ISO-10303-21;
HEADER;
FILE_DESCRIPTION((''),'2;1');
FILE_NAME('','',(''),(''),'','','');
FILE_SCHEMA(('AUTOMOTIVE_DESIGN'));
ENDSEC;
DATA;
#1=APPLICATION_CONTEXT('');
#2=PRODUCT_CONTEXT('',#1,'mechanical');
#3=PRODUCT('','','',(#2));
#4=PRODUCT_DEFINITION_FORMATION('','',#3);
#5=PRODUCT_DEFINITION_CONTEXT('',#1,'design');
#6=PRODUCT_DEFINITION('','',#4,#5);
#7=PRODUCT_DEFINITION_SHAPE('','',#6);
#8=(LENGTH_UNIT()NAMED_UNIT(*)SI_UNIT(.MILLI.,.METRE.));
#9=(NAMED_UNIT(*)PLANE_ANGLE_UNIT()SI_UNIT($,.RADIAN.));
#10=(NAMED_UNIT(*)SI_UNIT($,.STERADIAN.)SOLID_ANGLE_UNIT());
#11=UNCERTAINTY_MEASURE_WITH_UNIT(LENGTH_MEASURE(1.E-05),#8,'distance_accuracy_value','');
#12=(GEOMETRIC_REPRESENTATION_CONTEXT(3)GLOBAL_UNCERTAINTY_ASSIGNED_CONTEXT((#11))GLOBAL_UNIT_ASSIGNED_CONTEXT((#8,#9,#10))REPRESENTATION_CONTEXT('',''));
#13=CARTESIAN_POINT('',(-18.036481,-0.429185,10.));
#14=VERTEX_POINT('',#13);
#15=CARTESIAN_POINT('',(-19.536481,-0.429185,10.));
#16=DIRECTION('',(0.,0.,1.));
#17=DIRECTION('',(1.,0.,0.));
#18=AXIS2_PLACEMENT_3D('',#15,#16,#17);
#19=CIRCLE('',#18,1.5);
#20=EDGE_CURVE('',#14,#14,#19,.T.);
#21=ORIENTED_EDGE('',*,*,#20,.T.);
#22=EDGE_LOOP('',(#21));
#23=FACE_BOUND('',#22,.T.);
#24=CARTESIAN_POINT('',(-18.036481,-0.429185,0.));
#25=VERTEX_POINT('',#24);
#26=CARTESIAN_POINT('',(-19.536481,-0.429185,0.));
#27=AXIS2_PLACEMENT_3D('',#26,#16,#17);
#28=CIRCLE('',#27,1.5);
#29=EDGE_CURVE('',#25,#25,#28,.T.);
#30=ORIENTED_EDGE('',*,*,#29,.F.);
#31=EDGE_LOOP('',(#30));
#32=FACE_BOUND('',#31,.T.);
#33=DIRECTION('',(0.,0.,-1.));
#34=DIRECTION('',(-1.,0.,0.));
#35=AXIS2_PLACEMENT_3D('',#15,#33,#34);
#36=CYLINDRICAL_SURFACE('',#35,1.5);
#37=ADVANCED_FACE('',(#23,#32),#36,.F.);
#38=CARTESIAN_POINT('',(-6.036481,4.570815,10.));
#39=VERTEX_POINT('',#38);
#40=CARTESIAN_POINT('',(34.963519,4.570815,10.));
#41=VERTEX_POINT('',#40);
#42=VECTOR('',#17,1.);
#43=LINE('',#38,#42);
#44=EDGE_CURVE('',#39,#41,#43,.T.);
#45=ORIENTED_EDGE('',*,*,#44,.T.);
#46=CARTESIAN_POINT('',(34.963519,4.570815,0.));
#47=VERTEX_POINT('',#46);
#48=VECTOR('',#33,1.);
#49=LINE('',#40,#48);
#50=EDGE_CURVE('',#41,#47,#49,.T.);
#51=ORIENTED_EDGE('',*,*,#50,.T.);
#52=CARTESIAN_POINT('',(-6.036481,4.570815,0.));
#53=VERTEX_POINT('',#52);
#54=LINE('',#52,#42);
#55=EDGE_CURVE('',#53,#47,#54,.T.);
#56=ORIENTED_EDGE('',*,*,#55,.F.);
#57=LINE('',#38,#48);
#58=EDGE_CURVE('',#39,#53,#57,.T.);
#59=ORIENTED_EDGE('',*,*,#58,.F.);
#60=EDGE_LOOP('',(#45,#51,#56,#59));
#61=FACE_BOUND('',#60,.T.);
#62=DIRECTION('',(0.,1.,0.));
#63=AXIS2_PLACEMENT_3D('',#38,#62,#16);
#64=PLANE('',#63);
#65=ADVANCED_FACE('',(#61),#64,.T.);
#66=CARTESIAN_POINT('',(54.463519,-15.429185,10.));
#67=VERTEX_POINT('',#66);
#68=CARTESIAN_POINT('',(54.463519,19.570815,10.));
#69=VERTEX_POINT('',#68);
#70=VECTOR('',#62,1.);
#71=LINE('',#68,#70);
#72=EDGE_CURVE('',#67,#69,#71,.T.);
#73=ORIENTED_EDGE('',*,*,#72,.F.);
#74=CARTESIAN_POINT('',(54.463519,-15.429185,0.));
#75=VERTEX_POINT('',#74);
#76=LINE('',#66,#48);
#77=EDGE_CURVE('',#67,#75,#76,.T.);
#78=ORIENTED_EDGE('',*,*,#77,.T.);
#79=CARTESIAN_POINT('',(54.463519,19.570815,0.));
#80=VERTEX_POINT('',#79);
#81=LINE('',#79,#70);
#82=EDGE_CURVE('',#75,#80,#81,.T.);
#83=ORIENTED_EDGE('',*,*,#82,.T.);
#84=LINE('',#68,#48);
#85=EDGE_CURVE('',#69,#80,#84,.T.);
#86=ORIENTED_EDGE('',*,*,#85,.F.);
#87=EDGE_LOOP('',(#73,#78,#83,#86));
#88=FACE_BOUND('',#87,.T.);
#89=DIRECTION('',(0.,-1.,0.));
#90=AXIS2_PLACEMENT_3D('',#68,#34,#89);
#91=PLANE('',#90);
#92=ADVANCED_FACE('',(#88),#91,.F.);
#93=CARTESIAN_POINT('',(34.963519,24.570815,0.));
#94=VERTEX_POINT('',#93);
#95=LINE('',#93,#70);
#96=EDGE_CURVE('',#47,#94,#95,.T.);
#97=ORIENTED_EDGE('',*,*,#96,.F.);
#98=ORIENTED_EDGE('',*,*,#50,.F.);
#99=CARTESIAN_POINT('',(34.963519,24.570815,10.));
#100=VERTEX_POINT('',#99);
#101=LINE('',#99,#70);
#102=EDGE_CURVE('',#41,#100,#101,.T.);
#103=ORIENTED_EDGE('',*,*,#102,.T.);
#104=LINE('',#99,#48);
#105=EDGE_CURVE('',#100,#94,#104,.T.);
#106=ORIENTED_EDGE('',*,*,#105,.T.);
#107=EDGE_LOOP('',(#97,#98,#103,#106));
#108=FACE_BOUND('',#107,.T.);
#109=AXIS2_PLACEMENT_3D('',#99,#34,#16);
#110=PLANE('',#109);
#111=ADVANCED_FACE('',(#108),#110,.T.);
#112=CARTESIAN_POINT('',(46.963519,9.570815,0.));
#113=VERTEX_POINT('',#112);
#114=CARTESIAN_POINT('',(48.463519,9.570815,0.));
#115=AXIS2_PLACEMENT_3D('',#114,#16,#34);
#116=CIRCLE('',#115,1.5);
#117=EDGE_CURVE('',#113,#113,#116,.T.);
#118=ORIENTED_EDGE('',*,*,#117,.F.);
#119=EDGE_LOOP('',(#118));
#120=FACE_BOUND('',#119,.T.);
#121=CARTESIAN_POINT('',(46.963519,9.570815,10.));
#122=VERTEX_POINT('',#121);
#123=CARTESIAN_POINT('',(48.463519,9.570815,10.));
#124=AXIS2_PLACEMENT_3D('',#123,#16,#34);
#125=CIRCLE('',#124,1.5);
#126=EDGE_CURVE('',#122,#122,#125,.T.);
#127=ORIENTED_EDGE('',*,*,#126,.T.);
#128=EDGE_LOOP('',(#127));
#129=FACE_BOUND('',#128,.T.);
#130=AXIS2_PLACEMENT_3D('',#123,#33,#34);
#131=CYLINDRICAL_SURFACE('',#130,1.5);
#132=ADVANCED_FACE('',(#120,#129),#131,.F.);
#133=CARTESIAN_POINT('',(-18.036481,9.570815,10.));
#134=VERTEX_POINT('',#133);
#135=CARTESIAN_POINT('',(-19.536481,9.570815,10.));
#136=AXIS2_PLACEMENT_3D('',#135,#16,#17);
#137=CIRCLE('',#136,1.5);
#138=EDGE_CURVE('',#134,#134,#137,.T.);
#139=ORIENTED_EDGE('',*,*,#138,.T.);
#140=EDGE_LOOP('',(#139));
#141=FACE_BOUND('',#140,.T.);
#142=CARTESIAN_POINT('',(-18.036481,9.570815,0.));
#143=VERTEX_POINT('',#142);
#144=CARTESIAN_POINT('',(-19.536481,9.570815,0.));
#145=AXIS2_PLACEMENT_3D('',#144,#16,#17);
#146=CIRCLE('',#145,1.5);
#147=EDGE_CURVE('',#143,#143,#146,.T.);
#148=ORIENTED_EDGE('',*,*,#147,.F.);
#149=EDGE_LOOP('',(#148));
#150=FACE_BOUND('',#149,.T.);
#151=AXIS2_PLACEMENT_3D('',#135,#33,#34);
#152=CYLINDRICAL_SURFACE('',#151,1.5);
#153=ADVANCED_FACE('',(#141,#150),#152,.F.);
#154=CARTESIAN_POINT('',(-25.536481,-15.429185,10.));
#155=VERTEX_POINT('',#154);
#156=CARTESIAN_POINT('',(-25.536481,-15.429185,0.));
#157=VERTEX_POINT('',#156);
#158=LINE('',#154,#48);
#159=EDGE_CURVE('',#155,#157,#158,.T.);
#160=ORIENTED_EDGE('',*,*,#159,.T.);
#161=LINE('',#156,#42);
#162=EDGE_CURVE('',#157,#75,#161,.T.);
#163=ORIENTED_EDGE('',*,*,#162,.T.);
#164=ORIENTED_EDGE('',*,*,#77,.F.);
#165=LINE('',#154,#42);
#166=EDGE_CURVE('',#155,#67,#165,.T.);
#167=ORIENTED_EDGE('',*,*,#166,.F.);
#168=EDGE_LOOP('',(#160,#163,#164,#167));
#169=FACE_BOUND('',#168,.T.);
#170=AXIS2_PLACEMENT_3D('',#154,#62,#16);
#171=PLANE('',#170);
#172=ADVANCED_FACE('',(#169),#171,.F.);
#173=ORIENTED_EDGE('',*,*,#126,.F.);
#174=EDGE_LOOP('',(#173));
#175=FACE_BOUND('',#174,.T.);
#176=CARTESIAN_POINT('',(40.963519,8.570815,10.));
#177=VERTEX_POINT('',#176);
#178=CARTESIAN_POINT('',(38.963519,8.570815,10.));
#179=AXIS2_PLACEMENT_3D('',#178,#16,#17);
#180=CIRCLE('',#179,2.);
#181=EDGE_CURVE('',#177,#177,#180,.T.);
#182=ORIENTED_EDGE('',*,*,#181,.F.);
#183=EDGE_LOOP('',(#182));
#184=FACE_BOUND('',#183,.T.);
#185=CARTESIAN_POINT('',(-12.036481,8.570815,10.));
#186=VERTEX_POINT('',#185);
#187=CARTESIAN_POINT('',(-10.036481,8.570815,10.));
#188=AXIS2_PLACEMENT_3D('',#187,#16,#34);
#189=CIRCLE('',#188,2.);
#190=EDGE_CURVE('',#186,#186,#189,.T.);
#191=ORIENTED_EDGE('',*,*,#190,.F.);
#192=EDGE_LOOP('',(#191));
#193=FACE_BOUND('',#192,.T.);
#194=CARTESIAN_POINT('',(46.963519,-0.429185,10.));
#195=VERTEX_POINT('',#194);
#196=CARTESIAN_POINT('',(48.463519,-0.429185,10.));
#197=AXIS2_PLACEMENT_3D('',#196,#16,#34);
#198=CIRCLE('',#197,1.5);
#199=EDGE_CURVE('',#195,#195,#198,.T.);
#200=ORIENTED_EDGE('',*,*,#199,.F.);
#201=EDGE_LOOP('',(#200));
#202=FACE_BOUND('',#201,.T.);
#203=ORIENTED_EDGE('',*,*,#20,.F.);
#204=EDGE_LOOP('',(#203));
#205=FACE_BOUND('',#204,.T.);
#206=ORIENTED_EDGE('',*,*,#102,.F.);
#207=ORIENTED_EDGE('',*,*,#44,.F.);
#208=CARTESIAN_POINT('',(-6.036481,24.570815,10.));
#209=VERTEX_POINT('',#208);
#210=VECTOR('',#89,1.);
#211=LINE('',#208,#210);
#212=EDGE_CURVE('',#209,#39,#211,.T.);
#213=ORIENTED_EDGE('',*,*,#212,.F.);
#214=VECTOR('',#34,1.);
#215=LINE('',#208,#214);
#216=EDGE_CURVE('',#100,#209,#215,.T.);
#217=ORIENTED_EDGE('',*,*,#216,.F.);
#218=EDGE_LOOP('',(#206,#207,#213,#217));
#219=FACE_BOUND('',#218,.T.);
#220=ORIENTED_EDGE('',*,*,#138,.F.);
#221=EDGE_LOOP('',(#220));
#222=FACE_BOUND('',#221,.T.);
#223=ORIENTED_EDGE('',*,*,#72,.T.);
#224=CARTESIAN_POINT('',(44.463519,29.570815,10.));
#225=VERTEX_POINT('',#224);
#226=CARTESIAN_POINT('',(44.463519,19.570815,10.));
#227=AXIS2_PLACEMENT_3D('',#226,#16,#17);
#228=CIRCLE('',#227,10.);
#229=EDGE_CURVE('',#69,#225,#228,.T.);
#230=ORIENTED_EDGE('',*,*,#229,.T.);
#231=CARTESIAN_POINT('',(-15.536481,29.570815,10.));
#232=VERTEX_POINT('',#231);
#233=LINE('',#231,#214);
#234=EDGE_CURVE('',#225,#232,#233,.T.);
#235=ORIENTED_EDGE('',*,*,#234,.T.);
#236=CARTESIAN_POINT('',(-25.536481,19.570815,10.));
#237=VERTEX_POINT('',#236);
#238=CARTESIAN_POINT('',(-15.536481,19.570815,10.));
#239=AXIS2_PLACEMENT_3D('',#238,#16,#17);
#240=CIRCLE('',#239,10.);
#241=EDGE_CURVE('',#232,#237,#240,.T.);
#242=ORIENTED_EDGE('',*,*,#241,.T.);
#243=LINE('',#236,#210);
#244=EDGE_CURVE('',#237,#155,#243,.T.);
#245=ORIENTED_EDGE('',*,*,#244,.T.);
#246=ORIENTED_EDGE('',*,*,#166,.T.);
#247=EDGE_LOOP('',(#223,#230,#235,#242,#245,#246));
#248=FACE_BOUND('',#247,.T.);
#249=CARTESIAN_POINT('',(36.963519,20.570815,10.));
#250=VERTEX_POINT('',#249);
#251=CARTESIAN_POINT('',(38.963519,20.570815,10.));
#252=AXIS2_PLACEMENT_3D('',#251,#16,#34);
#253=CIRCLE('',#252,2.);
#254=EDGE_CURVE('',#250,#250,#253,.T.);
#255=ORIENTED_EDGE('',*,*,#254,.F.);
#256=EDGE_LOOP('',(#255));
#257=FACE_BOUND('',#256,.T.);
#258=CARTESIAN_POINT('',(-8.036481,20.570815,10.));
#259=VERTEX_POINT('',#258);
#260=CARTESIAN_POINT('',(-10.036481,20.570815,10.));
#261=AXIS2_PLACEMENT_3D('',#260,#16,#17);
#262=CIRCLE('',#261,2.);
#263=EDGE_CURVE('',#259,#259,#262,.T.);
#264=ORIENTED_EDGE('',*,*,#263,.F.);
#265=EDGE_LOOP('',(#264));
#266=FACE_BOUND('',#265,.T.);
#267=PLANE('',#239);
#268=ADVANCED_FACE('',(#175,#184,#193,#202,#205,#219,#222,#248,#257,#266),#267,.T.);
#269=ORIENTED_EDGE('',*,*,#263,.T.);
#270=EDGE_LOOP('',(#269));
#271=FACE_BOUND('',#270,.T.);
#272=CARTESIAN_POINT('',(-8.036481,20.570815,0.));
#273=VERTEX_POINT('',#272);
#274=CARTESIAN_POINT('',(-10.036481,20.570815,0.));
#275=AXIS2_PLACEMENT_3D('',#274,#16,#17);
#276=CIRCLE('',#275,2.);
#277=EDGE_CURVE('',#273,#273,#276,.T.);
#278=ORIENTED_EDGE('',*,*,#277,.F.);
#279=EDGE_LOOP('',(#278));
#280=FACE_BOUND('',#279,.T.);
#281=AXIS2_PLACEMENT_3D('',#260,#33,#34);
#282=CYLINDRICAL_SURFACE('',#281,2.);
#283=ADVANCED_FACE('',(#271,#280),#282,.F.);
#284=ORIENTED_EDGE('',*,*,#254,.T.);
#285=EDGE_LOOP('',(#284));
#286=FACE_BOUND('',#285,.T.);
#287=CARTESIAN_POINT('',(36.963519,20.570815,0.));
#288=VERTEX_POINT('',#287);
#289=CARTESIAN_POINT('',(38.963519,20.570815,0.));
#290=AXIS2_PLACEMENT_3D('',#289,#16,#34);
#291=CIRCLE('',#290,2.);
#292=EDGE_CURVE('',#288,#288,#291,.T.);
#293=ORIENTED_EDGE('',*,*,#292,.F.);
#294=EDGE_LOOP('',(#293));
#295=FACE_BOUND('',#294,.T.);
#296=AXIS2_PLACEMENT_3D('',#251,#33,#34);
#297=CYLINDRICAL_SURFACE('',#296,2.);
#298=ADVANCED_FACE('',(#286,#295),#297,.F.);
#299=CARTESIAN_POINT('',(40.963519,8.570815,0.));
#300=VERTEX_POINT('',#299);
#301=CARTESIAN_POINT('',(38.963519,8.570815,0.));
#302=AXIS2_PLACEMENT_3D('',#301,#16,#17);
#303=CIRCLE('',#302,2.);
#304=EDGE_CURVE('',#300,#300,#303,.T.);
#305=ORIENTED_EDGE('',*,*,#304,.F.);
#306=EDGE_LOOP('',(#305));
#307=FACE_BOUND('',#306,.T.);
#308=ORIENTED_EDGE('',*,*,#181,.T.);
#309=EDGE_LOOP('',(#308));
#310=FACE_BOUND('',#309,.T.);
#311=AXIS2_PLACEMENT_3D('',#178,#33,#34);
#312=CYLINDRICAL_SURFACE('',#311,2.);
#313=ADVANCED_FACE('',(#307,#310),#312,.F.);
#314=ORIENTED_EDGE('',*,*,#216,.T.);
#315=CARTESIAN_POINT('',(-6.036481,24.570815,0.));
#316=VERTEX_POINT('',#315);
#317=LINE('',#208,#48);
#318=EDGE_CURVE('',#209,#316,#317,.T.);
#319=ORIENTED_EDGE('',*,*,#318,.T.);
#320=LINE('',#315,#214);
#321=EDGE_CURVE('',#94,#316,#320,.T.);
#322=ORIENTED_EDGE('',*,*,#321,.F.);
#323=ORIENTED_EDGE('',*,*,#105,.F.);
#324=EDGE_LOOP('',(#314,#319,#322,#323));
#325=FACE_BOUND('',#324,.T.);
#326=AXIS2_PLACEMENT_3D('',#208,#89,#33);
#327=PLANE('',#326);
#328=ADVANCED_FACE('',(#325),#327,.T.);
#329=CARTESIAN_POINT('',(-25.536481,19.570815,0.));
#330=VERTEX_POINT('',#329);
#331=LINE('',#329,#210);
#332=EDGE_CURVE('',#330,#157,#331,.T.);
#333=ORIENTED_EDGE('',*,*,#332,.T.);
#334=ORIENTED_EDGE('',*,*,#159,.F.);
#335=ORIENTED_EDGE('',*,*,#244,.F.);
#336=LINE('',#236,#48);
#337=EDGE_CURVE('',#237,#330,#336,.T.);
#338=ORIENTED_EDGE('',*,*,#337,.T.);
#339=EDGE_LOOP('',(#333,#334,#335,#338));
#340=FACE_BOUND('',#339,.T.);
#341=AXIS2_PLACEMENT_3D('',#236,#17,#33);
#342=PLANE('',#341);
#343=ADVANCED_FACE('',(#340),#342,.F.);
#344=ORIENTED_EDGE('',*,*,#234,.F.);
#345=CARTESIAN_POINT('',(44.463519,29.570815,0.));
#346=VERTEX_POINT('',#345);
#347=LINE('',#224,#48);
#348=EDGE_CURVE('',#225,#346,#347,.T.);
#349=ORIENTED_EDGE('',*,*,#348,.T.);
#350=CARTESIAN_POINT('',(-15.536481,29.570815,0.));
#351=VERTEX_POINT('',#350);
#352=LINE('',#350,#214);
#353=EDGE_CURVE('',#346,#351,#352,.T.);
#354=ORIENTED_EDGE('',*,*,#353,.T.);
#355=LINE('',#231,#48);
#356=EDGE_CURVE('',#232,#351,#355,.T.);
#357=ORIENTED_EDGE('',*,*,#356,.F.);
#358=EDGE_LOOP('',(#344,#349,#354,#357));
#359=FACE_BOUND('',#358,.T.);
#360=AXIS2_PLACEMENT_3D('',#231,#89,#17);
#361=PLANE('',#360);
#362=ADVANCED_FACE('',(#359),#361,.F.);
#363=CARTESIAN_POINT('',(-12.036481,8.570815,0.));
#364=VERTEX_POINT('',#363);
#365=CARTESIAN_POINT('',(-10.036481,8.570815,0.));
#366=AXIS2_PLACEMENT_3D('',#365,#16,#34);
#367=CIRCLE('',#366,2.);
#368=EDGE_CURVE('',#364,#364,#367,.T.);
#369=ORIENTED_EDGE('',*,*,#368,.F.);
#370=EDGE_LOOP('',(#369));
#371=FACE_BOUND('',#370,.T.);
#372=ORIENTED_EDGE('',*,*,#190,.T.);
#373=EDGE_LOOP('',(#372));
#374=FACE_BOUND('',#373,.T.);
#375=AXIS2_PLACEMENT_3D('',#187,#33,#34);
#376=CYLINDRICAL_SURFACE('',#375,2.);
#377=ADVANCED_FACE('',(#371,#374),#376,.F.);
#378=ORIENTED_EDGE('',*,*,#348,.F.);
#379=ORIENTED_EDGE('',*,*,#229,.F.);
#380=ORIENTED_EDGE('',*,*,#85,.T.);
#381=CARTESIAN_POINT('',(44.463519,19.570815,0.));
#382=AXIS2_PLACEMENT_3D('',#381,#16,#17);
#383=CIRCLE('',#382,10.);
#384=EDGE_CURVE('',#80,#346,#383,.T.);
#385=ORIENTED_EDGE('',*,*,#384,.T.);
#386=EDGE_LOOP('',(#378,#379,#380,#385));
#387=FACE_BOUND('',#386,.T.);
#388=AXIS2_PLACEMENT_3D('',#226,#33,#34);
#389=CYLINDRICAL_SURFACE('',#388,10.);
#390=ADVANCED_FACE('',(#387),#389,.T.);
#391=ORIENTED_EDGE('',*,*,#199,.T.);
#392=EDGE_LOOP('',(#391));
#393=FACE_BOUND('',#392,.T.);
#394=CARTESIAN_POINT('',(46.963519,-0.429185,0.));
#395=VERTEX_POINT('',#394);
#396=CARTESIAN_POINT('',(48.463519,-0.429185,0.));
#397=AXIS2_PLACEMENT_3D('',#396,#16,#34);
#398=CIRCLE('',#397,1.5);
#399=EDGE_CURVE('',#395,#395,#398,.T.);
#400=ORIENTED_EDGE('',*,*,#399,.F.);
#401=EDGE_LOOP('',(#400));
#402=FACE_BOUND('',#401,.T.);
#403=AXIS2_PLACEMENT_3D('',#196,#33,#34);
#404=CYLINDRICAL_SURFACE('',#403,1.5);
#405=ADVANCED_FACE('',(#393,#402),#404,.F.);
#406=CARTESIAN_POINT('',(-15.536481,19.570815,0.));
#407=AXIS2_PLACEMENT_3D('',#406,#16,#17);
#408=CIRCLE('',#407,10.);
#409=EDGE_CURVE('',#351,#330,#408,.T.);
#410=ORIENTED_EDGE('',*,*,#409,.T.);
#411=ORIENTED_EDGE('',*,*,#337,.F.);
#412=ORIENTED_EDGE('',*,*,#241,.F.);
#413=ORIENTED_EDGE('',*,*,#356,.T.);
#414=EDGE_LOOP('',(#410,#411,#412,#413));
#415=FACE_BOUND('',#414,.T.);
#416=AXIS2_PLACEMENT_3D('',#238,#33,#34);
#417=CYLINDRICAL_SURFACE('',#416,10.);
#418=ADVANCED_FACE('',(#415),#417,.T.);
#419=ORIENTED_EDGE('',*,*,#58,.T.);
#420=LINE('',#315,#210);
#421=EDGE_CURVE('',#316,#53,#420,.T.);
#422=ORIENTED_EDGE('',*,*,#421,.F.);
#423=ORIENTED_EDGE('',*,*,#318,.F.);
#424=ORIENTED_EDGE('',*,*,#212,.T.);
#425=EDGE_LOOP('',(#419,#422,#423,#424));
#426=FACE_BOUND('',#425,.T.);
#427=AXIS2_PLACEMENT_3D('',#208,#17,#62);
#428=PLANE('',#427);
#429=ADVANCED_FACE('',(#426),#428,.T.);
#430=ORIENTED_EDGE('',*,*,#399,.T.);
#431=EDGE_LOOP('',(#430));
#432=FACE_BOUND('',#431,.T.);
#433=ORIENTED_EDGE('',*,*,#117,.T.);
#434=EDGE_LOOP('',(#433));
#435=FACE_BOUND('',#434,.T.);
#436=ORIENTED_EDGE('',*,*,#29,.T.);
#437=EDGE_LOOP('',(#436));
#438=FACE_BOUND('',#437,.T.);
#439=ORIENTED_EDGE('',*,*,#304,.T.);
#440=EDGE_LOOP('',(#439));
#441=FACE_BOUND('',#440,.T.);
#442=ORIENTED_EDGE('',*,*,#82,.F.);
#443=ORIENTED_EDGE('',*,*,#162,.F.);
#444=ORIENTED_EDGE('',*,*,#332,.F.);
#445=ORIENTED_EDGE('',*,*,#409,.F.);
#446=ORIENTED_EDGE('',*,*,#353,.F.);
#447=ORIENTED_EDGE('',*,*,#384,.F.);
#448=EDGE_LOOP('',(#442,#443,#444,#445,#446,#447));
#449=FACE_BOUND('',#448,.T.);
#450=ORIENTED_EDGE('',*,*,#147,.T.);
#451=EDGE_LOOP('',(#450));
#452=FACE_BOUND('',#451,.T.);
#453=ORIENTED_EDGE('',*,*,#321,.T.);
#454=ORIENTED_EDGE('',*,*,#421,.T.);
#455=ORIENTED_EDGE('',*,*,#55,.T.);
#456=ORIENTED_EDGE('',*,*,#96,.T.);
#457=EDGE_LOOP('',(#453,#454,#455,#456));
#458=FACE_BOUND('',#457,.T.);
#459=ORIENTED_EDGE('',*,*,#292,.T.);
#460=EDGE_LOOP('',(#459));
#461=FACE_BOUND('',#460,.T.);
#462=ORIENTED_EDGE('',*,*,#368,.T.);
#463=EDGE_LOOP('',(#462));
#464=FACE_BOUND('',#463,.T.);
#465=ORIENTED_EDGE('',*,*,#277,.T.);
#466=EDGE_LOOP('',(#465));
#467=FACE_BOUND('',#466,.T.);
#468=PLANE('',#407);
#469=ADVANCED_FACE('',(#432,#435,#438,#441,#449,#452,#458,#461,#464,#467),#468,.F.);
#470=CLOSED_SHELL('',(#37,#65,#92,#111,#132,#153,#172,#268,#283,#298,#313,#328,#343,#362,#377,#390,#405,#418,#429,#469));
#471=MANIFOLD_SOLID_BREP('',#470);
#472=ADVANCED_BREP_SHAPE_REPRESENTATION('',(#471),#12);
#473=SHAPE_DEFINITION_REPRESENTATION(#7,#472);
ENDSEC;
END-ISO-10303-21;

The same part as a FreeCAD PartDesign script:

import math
import FreeCAD as App
import Part
import Sketcher

doc = App.newDocument("Part")
body = doc.addObject("PartDesign::Body", "Body")

sketch1 = body.newObject("Sketcher::SketchObject", "Sketch")
sketch1.AttachmentSupport = (doc.getObject("XY_Plane"), [""])
sketch1.MapMode = "FlatFace"
sketch1.addGeometry([
    Part.LineSegment(App.Vector(44.463519, 29.570815, 0), App.Vector(-15.536481, 29.570815, 0)),
    Part.ArcOfCircle(Part.Circle(App.Vector(-15.536481, 19.570815, 0), App.Vector(0, 0, 1), 10), math.radians(90), math.radians(180)),
    Part.LineSegment(App.Vector(-25.536481, 19.570815, 0), App.Vector(-25.536481, -15.429185, 0)),
    Part.LineSegment(App.Vector(-25.536481, -15.429185, 0), App.Vector(54.463519, -15.429185, 0)),
    Part.LineSegment(App.Vector(54.463519, -15.429185, 0), App.Vector(54.463519, 19.570815, 0)),
    Part.ArcOfCircle(Part.Circle(App.Vector(44.463519, 19.570815, 0), App.Vector(0, 0, 1), 10), math.radians(0), math.radians(90)),
    Part.Circle(App.Vector(48.463519, -0.429185, 0), App.Vector(0, 0, 1), 1.5),
    Part.Circle(App.Vector(48.463519, 9.570815, 0), App.Vector(0, 0, 1), 1.5),
    Part.Circle(App.Vector(38.963519, 8.570815, 0), App.Vector(0, 0, 1), 2),
    Part.Circle(App.Vector(-19.536481, -0.429185, 0), App.Vector(0, 0, 1), 1.5),
    Part.Circle(App.Vector(-10.036481, 8.570815, 0), App.Vector(0, 0, 1), 2),
    Part.Circle(App.Vector(-19.536481, 9.570815, 0), App.Vector(0, 0, 1), 1.5),
    Part.Circle(App.Vector(38.963519, 20.570815, 0), App.Vector(0, 0, 1), 2),
    Part.LineSegment(App.Vector(-6.036481, 4.570815, 0), App.Vector(-6.036481, 24.570815, 0)),
    Part.LineSegment(App.Vector(-6.036481, 24.570815, 0), App.Vector(34.963519, 24.570815, 0)),
    Part.LineSegment(App.Vector(34.963519, 24.570815, 0), App.Vector(34.963519, 4.570815, 0)),
    Part.LineSegment(App.Vector(34.963519, 4.570815, 0), App.Vector(-6.036481, 4.570815, 0)),
    Part.Circle(App.Vector(-10.036481, 20.570815, 0), App.Vector(0, 0, 1), 2),
], False)
sketch1.addConstraint([
    Sketcher.Constraint("Tangent", 0, 2, 1, 1),
    Sketcher.Constraint("Tangent", 1, 2, 2, 1),
    Sketcher.Constraint("Coincident", 2, 2, 3, 1),
    Sketcher.Constraint("Coincident", 3, 2, 4, 1),
    Sketcher.Constraint("Tangent", 4, 2, 5, 1),
    Sketcher.Constraint("Tangent", 5, 2, 0, 1),
    Sketcher.Constraint("Coincident", 13, 2, 14, 1),
    Sketcher.Constraint("Coincident", 14, 2, 15, 1),
    Sketcher.Constraint("Coincident", 15, 2, 16, 1),
    Sketcher.Constraint("Coincident", 16, 2, 13, 1),
    Sketcher.Constraint("Horizontal", 0),
    Sketcher.Constraint("Vertical", 2),
    Sketcher.Constraint("Horizontal", 3),
    Sketcher.Constraint("Vertical", 4),
    Sketcher.Constraint("Vertical", 13),
    Sketcher.Constraint("Horizontal", 14),
    Sketcher.Constraint("Vertical", 15),
    Sketcher.Constraint("Horizontal", 16),
    Sketcher.Constraint("Equal", 1, 5),
    Sketcher.Constraint("Equal", 6, 7),
    Sketcher.Constraint("Equal", 7, 9),
    Sketcher.Constraint("Equal", 8, 10),
    Sketcher.Constraint("Equal", 9, 11),
    Sketcher.Constraint("Equal", 10, 12),
    Sketcher.Constraint("Equal", 12, 17),
    Sketcher.Constraint("Horizontal", 6, 3, 9, 3),
    Sketcher.Constraint("Horizontal", 8, 3, 10, 3),
    Sketcher.Constraint("Horizontal", 7, 3, 11, 3),
    Sketcher.Constraint("Horizontal", 12, 3, 17, 3),
    Sketcher.Constraint("Vertical", 6, 3, 7, 3),
    Sketcher.Constraint("Vertical", 9, 3, 11, 3),
    Sketcher.Constraint("Vertical", 8, 3, 12, 3),
    Sketcher.Constraint("Vertical", 10, 3, 17, 3),
    Sketcher.Constraint("Diameter", 6, 3.0),
    Sketcher.Constraint("Diameter", 8, 4.0),
    Sketcher.Constraint("Radius", 1, 10.0),
    Sketcher.Constraint("DistanceX", 0, 2, 0, 1, 60.0),
    Sketcher.Constraint("DistanceX", 14, 1, 14, 2, 41.0),
    Sketcher.Constraint("DistanceY", 2, 2, 2, 1, 35.0),
    Sketcher.Constraint("DistanceY", 13, 1, 13, 2, 20.0),
    Sketcher.Constraint("DistanceX", 5, 3, 6, 3, 4.0),
    Sketcher.Constraint("DistanceY", 6, 3, 5, 3, 20.0),
    Sketcher.Constraint("DistanceY", 6, 3, 7, 3, 10.0),
    Sketcher.Constraint("DistanceY", 8, 3, 7, 3, 1.0),
    Sketcher.Constraint("DistanceX", 9, 3, 1, 3, 4.0),
    Sketcher.Constraint("DistanceX", 10, 3, 8, 3, 49.0),
    Sketcher.Constraint("DistanceY", 5, 3, 12, 3, 1.0),
    Sketcher.Constraint("DistanceX", 17, 3, 13, 2, 4.0),
    Sketcher.Constraint("DistanceY", 17, 3, 13, 2, 4.0),
    Sketcher.Constraint("DistanceX", 8, 3, 7, 3, 9.5),
    Sketcher.Constraint("DistanceX", 1, 3, -1, 1, 15.536481),
    Sketcher.Constraint("DistanceY", -1, 1, 1, 3, 19.570815),
])
pad1 = body.newObject("PartDesign::Pad", "Pad")
pad1.Profile = sketch1
pad1.Length = 10

doc.recompute()
